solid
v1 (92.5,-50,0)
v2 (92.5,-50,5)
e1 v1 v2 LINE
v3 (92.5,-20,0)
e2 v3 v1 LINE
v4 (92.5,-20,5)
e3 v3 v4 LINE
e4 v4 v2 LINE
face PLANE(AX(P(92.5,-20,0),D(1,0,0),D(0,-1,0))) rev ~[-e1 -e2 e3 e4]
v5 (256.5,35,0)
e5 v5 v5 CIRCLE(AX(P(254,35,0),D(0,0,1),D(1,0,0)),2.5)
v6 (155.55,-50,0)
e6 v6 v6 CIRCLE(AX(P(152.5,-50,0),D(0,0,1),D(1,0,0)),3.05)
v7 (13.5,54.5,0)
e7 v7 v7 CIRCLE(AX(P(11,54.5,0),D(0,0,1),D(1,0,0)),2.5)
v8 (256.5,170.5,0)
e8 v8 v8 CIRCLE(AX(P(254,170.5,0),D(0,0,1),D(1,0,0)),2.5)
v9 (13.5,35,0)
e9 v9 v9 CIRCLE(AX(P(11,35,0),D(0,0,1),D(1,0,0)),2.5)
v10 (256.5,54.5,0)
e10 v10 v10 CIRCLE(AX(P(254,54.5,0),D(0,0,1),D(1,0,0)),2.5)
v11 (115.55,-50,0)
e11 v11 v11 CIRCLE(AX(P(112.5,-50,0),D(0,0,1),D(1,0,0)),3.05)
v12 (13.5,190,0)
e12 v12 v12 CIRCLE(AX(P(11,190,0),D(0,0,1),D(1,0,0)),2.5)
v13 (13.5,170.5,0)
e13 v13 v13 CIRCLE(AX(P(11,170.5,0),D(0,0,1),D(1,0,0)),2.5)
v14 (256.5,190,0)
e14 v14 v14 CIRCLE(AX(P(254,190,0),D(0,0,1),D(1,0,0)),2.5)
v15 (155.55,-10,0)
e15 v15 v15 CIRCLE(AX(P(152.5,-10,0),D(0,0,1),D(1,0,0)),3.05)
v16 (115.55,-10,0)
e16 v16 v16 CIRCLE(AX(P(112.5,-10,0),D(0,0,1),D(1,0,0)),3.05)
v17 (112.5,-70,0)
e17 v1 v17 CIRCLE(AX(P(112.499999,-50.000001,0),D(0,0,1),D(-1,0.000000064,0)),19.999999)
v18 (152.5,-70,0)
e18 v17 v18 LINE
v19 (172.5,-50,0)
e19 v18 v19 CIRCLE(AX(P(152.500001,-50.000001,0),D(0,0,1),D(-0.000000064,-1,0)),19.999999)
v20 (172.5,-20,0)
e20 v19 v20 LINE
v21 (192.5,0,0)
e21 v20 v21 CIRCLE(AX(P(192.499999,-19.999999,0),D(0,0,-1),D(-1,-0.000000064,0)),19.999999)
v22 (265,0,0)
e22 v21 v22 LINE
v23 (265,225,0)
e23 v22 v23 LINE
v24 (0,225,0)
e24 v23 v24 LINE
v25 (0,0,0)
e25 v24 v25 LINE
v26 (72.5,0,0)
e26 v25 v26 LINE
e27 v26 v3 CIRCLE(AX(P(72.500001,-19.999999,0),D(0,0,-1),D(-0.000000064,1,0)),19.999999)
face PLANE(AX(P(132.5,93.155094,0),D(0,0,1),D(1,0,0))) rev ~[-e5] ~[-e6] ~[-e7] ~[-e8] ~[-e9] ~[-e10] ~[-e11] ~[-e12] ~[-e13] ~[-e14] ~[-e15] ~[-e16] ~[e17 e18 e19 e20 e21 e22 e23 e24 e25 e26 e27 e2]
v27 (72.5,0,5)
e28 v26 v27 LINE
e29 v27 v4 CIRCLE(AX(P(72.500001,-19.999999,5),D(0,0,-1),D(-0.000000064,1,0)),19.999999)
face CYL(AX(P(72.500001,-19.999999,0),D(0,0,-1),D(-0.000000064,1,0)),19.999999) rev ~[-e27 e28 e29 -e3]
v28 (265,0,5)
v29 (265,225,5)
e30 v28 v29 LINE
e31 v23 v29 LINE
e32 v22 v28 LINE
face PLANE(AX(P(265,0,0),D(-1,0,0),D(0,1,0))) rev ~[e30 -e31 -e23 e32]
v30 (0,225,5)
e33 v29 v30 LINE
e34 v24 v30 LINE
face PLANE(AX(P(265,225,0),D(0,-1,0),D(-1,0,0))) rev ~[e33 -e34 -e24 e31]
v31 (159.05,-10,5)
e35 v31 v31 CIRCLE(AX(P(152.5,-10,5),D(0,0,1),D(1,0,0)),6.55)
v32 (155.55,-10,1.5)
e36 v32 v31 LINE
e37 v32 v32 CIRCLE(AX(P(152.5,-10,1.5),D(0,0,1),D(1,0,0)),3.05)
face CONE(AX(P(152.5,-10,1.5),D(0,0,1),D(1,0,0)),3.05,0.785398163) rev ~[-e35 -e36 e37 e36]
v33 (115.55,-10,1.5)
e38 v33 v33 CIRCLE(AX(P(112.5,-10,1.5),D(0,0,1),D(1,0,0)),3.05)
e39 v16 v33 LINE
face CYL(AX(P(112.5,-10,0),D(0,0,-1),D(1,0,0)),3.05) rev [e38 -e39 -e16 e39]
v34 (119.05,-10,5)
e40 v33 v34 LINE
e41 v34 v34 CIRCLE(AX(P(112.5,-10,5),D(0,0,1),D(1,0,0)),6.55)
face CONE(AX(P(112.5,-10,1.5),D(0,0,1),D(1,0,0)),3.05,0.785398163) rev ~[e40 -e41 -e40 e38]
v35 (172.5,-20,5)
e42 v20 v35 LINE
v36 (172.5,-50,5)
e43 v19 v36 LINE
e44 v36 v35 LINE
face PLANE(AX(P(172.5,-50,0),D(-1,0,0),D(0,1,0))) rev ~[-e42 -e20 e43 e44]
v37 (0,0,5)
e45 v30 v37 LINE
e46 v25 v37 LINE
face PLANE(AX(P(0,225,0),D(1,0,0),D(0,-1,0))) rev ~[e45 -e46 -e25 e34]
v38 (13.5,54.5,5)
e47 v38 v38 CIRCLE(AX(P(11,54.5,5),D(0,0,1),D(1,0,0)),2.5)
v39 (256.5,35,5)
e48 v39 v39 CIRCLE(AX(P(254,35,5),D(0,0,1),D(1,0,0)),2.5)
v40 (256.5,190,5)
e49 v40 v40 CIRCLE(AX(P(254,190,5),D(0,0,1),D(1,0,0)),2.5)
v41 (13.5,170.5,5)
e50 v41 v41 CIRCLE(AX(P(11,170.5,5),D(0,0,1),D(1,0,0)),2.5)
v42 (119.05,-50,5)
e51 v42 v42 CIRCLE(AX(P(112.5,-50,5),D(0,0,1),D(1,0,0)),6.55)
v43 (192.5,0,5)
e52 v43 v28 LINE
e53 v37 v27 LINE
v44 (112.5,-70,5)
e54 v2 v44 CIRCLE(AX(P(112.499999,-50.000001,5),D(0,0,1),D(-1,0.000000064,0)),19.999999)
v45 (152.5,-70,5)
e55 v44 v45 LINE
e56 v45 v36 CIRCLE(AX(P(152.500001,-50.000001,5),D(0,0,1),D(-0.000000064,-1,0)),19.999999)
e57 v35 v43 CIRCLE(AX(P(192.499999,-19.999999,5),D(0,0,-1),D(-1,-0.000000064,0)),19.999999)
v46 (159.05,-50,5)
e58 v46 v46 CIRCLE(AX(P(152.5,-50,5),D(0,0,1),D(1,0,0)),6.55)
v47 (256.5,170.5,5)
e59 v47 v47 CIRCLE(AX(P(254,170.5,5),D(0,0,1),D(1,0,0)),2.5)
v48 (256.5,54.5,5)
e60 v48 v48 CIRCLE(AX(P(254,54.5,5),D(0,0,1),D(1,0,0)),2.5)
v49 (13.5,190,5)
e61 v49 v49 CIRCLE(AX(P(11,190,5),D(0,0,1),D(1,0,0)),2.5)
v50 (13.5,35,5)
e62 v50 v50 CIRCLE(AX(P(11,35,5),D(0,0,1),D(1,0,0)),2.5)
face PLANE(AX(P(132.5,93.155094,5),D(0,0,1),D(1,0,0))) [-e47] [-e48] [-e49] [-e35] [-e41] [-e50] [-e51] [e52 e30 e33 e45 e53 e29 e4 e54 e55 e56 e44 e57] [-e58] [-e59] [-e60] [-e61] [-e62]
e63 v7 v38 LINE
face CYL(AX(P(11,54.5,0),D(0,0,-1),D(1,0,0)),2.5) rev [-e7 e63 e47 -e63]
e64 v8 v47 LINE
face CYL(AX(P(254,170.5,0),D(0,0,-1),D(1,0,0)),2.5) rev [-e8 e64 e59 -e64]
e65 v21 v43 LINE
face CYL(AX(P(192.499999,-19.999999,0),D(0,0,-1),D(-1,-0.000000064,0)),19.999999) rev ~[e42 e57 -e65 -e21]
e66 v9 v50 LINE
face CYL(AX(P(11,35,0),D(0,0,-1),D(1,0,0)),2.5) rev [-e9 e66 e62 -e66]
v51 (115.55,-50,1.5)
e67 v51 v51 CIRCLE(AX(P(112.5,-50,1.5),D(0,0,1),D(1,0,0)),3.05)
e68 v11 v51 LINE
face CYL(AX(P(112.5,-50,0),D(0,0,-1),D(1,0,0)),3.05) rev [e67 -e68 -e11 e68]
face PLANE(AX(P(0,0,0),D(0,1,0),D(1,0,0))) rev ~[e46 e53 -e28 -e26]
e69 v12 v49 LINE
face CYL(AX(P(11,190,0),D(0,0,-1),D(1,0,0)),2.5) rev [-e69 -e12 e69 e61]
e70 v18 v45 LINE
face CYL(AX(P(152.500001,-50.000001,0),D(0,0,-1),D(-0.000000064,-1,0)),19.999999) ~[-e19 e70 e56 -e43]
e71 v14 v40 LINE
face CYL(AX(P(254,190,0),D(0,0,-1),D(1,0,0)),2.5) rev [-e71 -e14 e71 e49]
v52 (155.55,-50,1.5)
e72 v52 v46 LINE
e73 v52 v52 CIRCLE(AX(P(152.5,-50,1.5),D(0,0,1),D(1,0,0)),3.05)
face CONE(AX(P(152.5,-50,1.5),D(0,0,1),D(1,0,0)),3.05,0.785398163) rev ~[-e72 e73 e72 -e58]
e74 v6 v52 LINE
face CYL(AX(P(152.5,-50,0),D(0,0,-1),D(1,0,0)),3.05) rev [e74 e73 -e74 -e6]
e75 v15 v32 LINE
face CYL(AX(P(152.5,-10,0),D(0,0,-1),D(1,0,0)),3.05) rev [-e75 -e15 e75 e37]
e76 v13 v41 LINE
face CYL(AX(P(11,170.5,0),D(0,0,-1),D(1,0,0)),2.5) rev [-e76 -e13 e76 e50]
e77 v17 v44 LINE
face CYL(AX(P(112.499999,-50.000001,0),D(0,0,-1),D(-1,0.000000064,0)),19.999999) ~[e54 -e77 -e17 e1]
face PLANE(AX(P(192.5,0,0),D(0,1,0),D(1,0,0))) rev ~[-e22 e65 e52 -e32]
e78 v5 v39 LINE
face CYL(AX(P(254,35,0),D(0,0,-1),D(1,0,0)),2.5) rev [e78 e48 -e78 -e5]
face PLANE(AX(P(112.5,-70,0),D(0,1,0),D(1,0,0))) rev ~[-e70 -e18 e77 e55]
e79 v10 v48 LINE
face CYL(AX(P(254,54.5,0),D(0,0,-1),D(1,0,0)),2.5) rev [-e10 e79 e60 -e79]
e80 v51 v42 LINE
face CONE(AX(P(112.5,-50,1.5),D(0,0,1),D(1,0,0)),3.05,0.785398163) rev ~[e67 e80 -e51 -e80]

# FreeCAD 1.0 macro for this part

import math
import FreeCAD as App
import Part
import Sketcher
Q = App.Units.Quantity


def edges_at(feature, points):
    """Names of the edges that pass closest to the given points."""
    edges = feature.Shape.Edges
    near = lambda p: min(range(len(edges)), key=lambda i: edges[i].distToShape(Part.Vertex(*p))[0])
    return sorted({f"Edge{near(p) + 1}" for p in points})

doc = App.newDocument("Part")
body = doc.addObject("PartDesign::Body", "Body")

# Sketch on XY plane
sketch1 = body.newObject("Sketcher::SketchObject", "Sketch")
sketch1.AttachmentSupport = (doc.getObject("XY_Plane"), [""])
sketch1.MapMode = "FlatFace"
sketch1.addGeometry([
    Part.LineSegment(App.Vector(0, 225, 0), App.Vector(0, 0, 0)),  # 0
    Part.LineSegment(App.Vector(0, 0, 0), App.Vector(72.5, 0, 0)),  # 1
    Part.ArcOfCircle(Part.Circle(App.Vector(72.5, -20, 0), App.Vector(0, 0, 1), 20), math.radians(0), math.radians(90)),  # 2
    Part.LineSegment(App.Vector(92.5, -20, 0), App.Vector(92.5, -50, 0)),  # 3
    Part.ArcOfCircle(Part.Circle(App.Vector(112.5, -50, 0), App.Vector(0, 0, 1), 20), math.radians(180), math.radians(270)),  # 4
    Part.LineSegment(App.Vector(112.5, -70, 0), App.Vector(152.5, -70, 0)),  # 5
    Part.ArcOfCircle(Part.Circle(App.Vector(152.5, -50, 0), App.Vector(0, 0, 1), 20), math.radians(-90), math.radians(0)),  # 6
    Part.LineSegment(App.Vector(172.5, -50, 0), App.Vector(172.5, -20, 0)),  # 7
    Part.ArcOfCircle(Part.Circle(App.Vector(192.5, -20, 0), App.Vector(0, 0, 1), 20), math.radians(90), math.radians(180)),  # 8
    Part.LineSegment(App.Vector(192.5, 0, 0), App.Vector(265, 0, 0)),  # 9
    Part.LineSegment(App.Vector(265, 0, 0), App.Vector(265, 225, 0)),  # 10
    Part.LineSegment(App.Vector(265, 225, 0), App.Vector(0, 225, 0)),  # 11
    Part.Circle(App.Vector(112.5, -50, 0), App.Vector(0, 0, 1), 3),  # 12
    Part.Circle(App.Vector(112.5, -10, 0), App.Vector(0, 0, 1), 3),  # 13
    Part.Circle(App.Vector(11, 35, 0), App.Vector(0, 0, 1), 2.5),  # 14
    Part.Circle(App.Vector(11, 54.5, 0), App.Vector(0, 0, 1), 2.5),  # 15
    Part.Circle(App.Vector(152.5, -50, 0), App.Vector(0, 0, 1), 3),  # 16
    Part.Circle(App.Vector(152.5, -10, 0), App.Vector(0, 0, 1), 3),  # 17
    Part.Circle(App.Vector(254, 35, 0), App.Vector(0, 0, 1), 2.5),  # 18
    Part.Circle(App.Vector(254, 54.5, 0), App.Vector(0, 0, 1), 2.5),  # 19
    Part.Circle(App.Vector(11, 170.5, 0), App.Vector(0, 0, 1), 2.5),  # 20
    Part.Circle(App.Vector(11, 190, 0), App.Vector(0, 0, 1), 2.5),  # 21
    Part.Circle(App.Vector(254, 170.5, 0), App.Vector(0, 0, 1), 2.5),  # 22
    Part.Circle(App.Vector(254, 190, 0), App.Vector(0, 0, 1), 2.5),  # 23
], False)
sketch1.addConstraint([
    Sketcher.Constraint("Coincident", 0, 2, 1, 1),
    Sketcher.Constraint("Tangent", 1, 2, 2, 2),
    Sketcher.Constraint("Tangent", 2, 1, 3, 1),
    Sketcher.Constraint("Tangent", 3, 2, 4, 1),
    Sketcher.Constraint("Tangent", 4, 2, 5, 1),
    Sketcher.Constraint("Tangent", 5, 2, 6, 1),
    Sketcher.Constraint("Tangent", 6, 2, 7, 1),
    Sketcher.Constraint("Tangent", 7, 2, 8, 2),
    Sketcher.Constraint("Tangent", 8, 1, 9, 1),
    Sketcher.Constraint("Coincident", 9, 2, 10, 1),
    Sketcher.Constraint("Coincident", 10, 2, 11, 1),
    Sketcher.Constraint("Coincident", 11, 2, 0, 1),
    Sketcher.Constraint("Vertical", 0),
    Sketcher.Constraint("Horizontal", 1),
    Sketcher.Constraint("Vertical", 3),
    Sketcher.Constraint("Horizontal", 5),
    Sketcher.Constraint("Vertical", 7),
    Sketcher.Constraint("Horizontal", 9),
    Sketcher.Constraint("Vertical", 10),
    Sketcher.Constraint("Horizontal", 11),
    Sketcher.Constraint("Coincident", 0, 2, -1, 1),
    Sketcher.Constraint("Coincident", 12, 3, 4, 3),
    Sketcher.Constraint("Coincident", 16, 3, 6, 3),
    Sketcher.Constraint("Equal", 2, 4),
    Sketcher.Constraint("Equal", 4, 6),
    Sketcher.Constraint("Equal", 6, 8),
    Sketcher.Constraint("Equal", 12, 13),
    Sketcher.Constraint("Equal", 14, 15),
    Sketcher.Constraint("Equal", 13, 16),
    Sketcher.Constraint("Equal", 16, 17),
    Sketcher.Constraint("Equal", 15, 18),
    Sketcher.Constraint("Equal", 18, 19),
    Sketcher.Constraint("Equal", 19, 20),
    Sketcher.Constraint("Equal", 20, 21),
    Sketcher.Constraint("Equal", 21, 22),
    Sketcher.Constraint("Equal", 22, 23),
    Sketcher.Constraint("PointOnObject", 8, 1, -1),
    Sketcher.Constraint("Horizontal", 13, 3, 17, 3),
    Sketcher.Constraint("Horizontal", 14, 3, 18, 3),
    Sketcher.Constraint("Horizontal", 15, 3, 19, 3),
    Sketcher.Constraint("Horizontal", 20, 3, 22, 3),
    Sketcher.Constraint("Horizontal", 21, 3, 23, 3),
    Sketcher.Constraint("Vertical", 12, 3, 13, 3),
    Sketcher.Constraint("Vertical", 14, 3, 15, 3),
    Sketcher.Constraint("Vertical", 16, 3, 17, 3),
    Sketcher.Constraint("Vertical", 18, 3, 19, 3),
    Sketcher.Constraint("Vertical", 15, 3, 20, 3),
    Sketcher.Constraint("Vertical", 20, 3, 21, 3),
    Sketcher.Constraint("Vertical", 19, 3, 22, 3),
    Sketcher.Constraint("Vertical", 22, 3, 23, 3),
    Sketcher.Constraint("Equal", 1, 9),
    Sketcher.Constraint("Diameter", 14, Q("5 mm")),
    Sketcher.Constraint("Radius", 2, Q("19.999999 mm")),
    Sketcher.Constraint("Diameter", 12, Q("6.1 mm")),
    Sketcher.Constraint("DistanceX", 5, 1, 5, 2, Q("40 mm")),
    Sketcher.Constraint("DistanceX", 11, 2, 11, 1, Q("265 mm")),
    Sketcher.Constraint("DistanceY", 0, 2, 0, 1, Q("225 mm")),
    Sketcher.Constraint("DistanceY", 3, 2, 3, 1, Q("30 mm")),
    Sketcher.Constraint("DistanceY", 13, 3, -1, 1, Q("10 mm")),
    Sketcher.Constraint("DistanceX", -1, 1, 14, 3, Q("11 mm")),
    Sketcher.Constraint("DistanceY", -1, 1, 14, 3, Q("35 mm")),
    Sketcher.Constraint("DistanceX", -1, 1, 18, 3, Q("254 mm")),
    Sketcher.Constraint("DistanceY", -1, 1, 21, 3, Q("190 mm")),
    Sketcher.Constraint("DistanceY", 15, 3, 20, 3, Q("116 mm")),
    Sketcher.Constraint("DistanceY", -1, 1, 15, 3, Q("54.5 mm")),
])
pad1 = body.newObject("PartDesign::Pad", "Pad")
pad1.Profile = sketch1
pad1.Length = 5
doc.recompute()

chamfer = body.newObject("PartDesign::Chamfer", "Chamfer")
chamfer.Base = (pad1, edges_at(pad1, [
    (109.45, -10, 5),
    (149.45, -10, 5),
    (109.45, -50, 5),
    (149.45, -50, 5),
]))
chamfer.Size = 3.5

doc.recompute()
